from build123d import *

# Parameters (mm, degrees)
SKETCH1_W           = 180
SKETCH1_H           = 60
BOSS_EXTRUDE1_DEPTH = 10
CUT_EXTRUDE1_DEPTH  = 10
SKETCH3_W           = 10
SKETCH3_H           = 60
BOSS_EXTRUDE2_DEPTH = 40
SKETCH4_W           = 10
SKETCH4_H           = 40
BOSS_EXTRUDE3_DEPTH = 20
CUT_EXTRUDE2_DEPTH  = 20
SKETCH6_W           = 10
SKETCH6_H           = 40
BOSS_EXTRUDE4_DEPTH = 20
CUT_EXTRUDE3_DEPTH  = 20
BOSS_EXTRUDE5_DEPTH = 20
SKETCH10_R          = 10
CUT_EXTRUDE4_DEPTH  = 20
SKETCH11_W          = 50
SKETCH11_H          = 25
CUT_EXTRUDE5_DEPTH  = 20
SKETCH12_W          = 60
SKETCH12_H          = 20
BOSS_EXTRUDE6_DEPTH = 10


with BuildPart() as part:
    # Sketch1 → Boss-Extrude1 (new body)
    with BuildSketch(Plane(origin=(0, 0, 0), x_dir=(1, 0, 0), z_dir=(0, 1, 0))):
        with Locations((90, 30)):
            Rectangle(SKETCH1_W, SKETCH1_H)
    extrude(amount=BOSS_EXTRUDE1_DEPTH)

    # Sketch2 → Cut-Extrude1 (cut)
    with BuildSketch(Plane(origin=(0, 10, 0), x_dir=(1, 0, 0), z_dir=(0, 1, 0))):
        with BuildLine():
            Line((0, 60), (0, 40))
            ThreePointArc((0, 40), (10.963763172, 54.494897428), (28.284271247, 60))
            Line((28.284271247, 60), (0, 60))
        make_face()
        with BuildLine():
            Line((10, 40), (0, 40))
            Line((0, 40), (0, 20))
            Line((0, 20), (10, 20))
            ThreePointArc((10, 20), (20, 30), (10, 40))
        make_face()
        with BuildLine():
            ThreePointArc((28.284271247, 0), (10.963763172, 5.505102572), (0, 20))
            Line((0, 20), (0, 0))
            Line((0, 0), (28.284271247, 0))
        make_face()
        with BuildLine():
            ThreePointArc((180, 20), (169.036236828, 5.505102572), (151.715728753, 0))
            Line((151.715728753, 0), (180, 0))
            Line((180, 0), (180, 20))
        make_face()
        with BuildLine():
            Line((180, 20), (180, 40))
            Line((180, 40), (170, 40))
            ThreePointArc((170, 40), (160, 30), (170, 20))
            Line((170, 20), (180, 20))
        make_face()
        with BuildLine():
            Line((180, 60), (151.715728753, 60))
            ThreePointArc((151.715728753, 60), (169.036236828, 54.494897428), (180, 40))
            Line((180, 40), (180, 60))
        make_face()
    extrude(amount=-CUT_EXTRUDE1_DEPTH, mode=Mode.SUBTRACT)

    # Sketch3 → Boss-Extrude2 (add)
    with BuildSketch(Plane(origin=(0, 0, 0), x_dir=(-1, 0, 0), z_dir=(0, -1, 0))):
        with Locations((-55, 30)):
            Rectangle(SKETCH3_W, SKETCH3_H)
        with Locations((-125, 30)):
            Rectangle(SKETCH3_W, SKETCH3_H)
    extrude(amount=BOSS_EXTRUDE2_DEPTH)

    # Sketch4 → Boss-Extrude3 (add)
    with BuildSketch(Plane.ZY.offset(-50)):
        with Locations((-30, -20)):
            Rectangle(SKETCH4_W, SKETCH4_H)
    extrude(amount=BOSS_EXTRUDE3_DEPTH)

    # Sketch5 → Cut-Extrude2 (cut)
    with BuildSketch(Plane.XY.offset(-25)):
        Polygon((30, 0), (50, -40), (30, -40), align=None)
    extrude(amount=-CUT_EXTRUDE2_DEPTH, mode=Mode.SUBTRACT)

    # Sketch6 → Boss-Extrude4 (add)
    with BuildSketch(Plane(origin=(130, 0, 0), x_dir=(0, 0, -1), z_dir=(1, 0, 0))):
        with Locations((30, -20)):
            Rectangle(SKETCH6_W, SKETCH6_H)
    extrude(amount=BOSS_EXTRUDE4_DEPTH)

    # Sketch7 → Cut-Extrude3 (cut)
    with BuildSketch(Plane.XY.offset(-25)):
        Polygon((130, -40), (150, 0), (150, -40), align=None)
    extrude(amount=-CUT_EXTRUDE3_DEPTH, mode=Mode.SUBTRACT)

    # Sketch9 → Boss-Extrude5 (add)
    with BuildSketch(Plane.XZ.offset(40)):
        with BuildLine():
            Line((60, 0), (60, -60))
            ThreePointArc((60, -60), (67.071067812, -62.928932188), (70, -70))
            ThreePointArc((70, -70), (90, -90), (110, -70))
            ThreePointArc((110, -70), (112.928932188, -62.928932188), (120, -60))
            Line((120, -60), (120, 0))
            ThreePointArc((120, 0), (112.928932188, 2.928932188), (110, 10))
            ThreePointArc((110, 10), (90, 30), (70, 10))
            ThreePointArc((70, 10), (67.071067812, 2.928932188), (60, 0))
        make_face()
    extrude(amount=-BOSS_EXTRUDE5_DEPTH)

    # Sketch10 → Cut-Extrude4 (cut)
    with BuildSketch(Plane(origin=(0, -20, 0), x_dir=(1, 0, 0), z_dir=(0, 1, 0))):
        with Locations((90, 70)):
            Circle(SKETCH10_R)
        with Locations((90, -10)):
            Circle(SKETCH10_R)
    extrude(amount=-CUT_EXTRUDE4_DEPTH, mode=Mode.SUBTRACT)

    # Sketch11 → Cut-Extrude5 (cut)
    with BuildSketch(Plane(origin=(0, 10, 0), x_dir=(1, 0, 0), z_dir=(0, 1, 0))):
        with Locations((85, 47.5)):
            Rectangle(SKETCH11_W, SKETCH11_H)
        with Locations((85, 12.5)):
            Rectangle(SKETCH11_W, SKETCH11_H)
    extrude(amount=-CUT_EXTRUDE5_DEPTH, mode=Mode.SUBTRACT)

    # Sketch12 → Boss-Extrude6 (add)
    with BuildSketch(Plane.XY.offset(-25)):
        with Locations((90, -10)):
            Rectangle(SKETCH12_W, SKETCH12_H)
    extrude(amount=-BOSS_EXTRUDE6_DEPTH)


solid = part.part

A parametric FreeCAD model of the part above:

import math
import FreeCAD as App
import Part
import Sketcher
from FreeCAD import Vector
Q = App.Units.Quantity

doc = App.newDocument("Part")
body = doc.addObject("PartDesign::Body", "Body")

sketch1 = body.newObject("Sketcher::SketchObject", "Sketch")
sketch1.AttachmentSupport = (doc.getObject("XZ_Plane"), [""])
sketch1.MapMode = "FlatFace"
sketch1.addGeometry([
    Part.LineSegment(Vector(0, -60, 0), Vector(0, 0, 0)),
    Part.LineSegment(Vector(0, 0, 0), Vector(180, 0, 0)),
    Part.LineSegment(Vector(180, 0, 0), Vector(180, -60, 0)),
    Part.LineSegment(Vector(180, -60, 0), Vector(0, -60, 0)),
], False)
sketch1.addConstraint([
    Sketcher.Constraint("Coincident", 0, 2, 1, 1),
    Sketcher.Constraint("Coincident", 1, 2, 2, 1),
    Sketcher.Constraint("Coincident", 2, 2, 3, 1),
    Sketcher.Constraint("Coincident", 3, 2, 0, 1),
    Sketcher.Constraint("Vertical", 0),
    Sketcher.Constraint("Horizontal", 1),
    Sketcher.Constraint("Vertical", 2),
    Sketcher.Constraint("Horizontal", 3),
    Sketcher.Constraint("Coincident", 0, 2, -1, 1),
    Sketcher.Constraint("DistanceX", 1, 1, 1, 2, Q("180 mm")),
    Sketcher.Constraint("DistanceY", 0, 1, 0, 2, Q("60 mm")),
])
pad1 = body.newObject("PartDesign::Pad", "Pad")
pad1.Profile = sketch1
pad1.Length = 10
pad1.Reversed = True

sketch2 = body.newObject("Sketcher::SketchObject", "Sketch001")
sketch2.AttachmentSupport = (doc.getObject("XZ_Plane"), [""])
sketch2.MapMode = "FlatFace"
sketch2.AttachmentOffset = App.Placement(Vector(0, 0, -10), App.Rotation())
sketch2.addGeometry([
    Part.LineSegment(Vector(0, -60, 0), Vector(0, -40, 0)),
    Part.ArcOfCircle(Part.Circle(Vector(28.284271, -30, 0), Vector(0, 0, 1), 30), math.radians(-160.528779), math.radians(-90)),
    Part.LineSegment(Vector(28.284271, -60, 0), Vector(0, -60, 0)),
    Part.LineSegment(Vector(10, -40, 0), Vector(0, -40, 0)),
    Part.LineSegment(Vector(0, -40, 0), Vector(0, -20, 0)),
    Part.LineSegment(Vector(0, -20, 0), Vector(10, -20, 0)),
    Part.ArcOfCircle(Part.Circle(Vector(10, -30, 0), Vector(0, 0, 1), 10), math.radians(-90), math.radians(90)),
    Part.ArcOfCircle(Part.Circle(Vector(28.284271, -30, 0), Vector(0, 0, 1), 30), math.radians(90), math.radians(160.528779)),
    Part.LineSegment(Vector(0, -20, 0), Vector(0, 0, 0)),
    Part.LineSegment(Vector(0, 0, 0), Vector(28.284271, 0, 0)),
    Part.ArcOfCircle(Part.Circle(Vector(151.715729, -30, 0), Vector(0, 0, 1), 30), math.radians(19.471221), math.radians(90)),
    Part.LineSegment(Vector(151.715729, 0, 0), Vector(180, 0, 0)),
    Part.LineSegment(Vector(180, 0, 0), Vector(180, -20, 0)),
    Part.LineSegment(Vector(180, -20, 0), Vector(180, -40, 0)),
    Part.LineSegment(Vector(180, -40, 0), Vector(170, -40, 0)),
    Part.ArcOfCircle(Part.Circle(Vector(170, -30, 0), Vector(0, 0, 1), 10), math.radians(90), math.radians(270)),
    Part.LineSegment(Vector(170, -20, 0), Vector(180, -20, 0)),
    Part.LineSegment(Vector(180, -60, 0), Vector(151.715729, -60, 0)),
    Part.ArcOfCircle(Part.Circle(Vector(151.715729, -30, 0), Vector(0, 0, 1), 30), math.radians(-90), math.radians(-19.471221)),
    Part.LineSegment(Vector(180, -40, 0), Vector(180, -60, 0)),
], False)
sketch2.addConstraint([
    Sketcher.Constraint("Coincident", 0, 2, 1, 1),
    Sketcher.Constraint("Tangent", 1, 2, 2, 1),
    Sketcher.Constraint("Coincident", 2, 2, 0, 1),
    Sketcher.Constraint("Coincident", 3, 2, 4, 1),
    Sketcher.Constraint("Coincident", 4, 2, 5, 1),
    Sketcher.Constraint("Tangent", 5, 2, 6, 2),
    Sketcher.Constraint("Tangent", 6, 1, 3, 1),
    Sketcher.Constraint("Coincident", 7, 2, 8, 1),
    Sketcher.Constraint("Coincident", 8, 2, 9, 1),
    Sketcher.Constraint("Tangent", 9, 2, 7, 1),
    Sketcher.Constraint("Tangent", 10, 2, 11, 1),
    Sketcher.Constraint("Coincident", 11, 2, 12, 1),
    Sketcher.Constraint("Coincident", 12, 2, 10, 1),
    Sketcher.Constraint("Coincident", 13, 2, 14, 1),
    Sketcher.Constraint("Tangent", 14, 2, 15, 2),
    Sketcher.Constraint("Tangent", 15, 1, 16, 1),
    Sketcher.Constraint("Coincident", 16, 2, 13, 1),
    Sketcher.Constraint("Tangent", 17, 2, 18, 1),
    Sketcher.Constraint("Coincident", 18, 2, 19, 1),
    Sketcher.Constraint("Coincident", 19, 2, 17, 1),
    Sketcher.Constraint("Vertical", 0),
    Sketcher.Constraint("Horizontal", 2),
    Sketcher.Constraint("Horizontal", 3),
    Sketcher.Constraint("Vertical", 4),
    Sketcher.Constraint("Horizontal", 5),
    Sketcher.Constraint("Vertical", 8),
    Sketcher.Constraint("Horizontal", 9),
    Sketcher.Constraint("Horizontal", 11),
    Sketcher.Constraint("Vertical", 12),
    Sketcher.Constraint("Vertical", 13),
    Sketcher.Constraint("Horizontal", 14),
    Sketcher.Constraint("Horizontal", 16),
    Sketcher.Constraint("Horizontal", 17),
    Sketcher.Constraint("Vertical", 19),
    Sketcher.Constraint("Coincident", 8, 2, -1, 1),
    Sketcher.Constraint("Coincident", 7, 3, 1, 3),
    Sketcher.Constraint("Coincident", 18, 3, 10, 3),
    Sketcher.Constraint("Coincident", 3, 2, 0, 2),
    Sketcher.Constraint("Coincident", 7, 2, 4, 2),
    Sketcher.Constraint("Coincident", 16, 2, 12, 2),
    Sketcher.Constraint("Coincident", 18, 2, 13, 2),
    Sketcher.Constraint("Equal", 1, 7),
    Sketcher.Constraint("Equal", 7, 10),
    Sketcher.Constraint("Equal", 6, 15),
    Sketcher.Constraint("Equal", 10, 18),
    Sketcher.Constraint("PointOnObject", 10, 2, -1),
    Sketcher.Constraint("Equal", 5, 14),
    Sketcher.Constraint("Equal", 0, 4),
    Sketcher.Constraint("Radius", 1, Q("30 mm")),
    Sketcher.Constraint("DistanceX", 3, 2, 3, 1, Q("10 mm")),
    Sketcher.Constraint("DistanceX", -1, 1, 15, 3, Q("170 mm")),
])
pocket1 = body.newObject("PartDesign::Pocket", "Pocket")
pocket1.Profile = sketch2
pocket1.Length = 10
pocket1.Reversed = True

sketch3 = body.newObject("Sketcher::SketchObject", "Sketch002")
sketch3.AttachmentSupport = (doc.getObject("XZ_Plane"), [""])
sketch3.MapMode = "FlatFace"
sketch3.addGeometry([
    Part.LineSegment(Vector(60, -60, 0), Vector(60, 0, 0)),
    Part.LineSegment(Vector(60, 0, 0), Vector(50, 0, 0)),
    Part.LineSegment(Vector(50, 0, 0), Vector(50, -60, 0)),
    Part.LineSegment(Vector(50, -60, 0), Vector(60, -60, 0)),
    Part.LineSegment(Vector(130, -60, 0), Vector(130, 0, 0)),
    Part.LineSegment(Vector(130, 0, 0), Vector(120, 0, 0)),
    Part.LineSegment(Vector(120, 0, 0), Vector(120, -60, 0)),
    Part.LineSegment(Vector(120, -60, 0), Vector(130, -60, 0)),
], False)
sketch3.addConstraint([
    Sketcher.Constraint("Coincident", 0, 2, 1, 1),
    Sketcher.Constraint("Coincident", 1, 2, 2, 1),
    Sketcher.Constraint("Coincident", 2, 2, 3, 1),
    Sketcher.Constraint("Coincident", 3, 2, 0, 1),
    Sketcher.Constraint("Coincident", 4, 2, 5, 1),
    Sketcher.Constraint("Coincident", 5, 2, 6, 1),
    Sketcher.Constraint("Coincident", 6, 2, 7, 1),
    Sketcher.Constraint("Coincident", 7, 2, 4, 1),
    Sketcher.Constraint("Vertical", 0),
    Sketcher.Constraint("Horizontal", 1),
    Sketcher.Constraint("Vertical", 2),
    Sketcher.Constraint("Horizontal", 3),
    Sketcher.Constraint("Vertical", 4),
    Sketcher.Constraint("Horizontal", 5),
    Sketcher.Constraint("Vertical", 6),
    Sketcher.Constraint("Horizontal", 7),
    Sketcher.Constraint("PointOnObject", 0, 2, -1),
    Sketcher.Constraint("PointOnObject", 4, 2, -1),
    Sketcher.Constraint("Horizontal", 3, 2, 6, 2),
    Sketcher.Constraint("Equal", 3, 5),
    Sketcher.Constraint("DistanceX", 1, 2, 1, 1, Q("10 mm")),
    Sketcher.Constraint("DistanceY", 0, 1, 0, 2, Q("60 mm")),
    Sketcher.Constraint("DistanceX", -1, 1, 0, 2, Q("60 mm")),
    Sketcher.Constraint("DistanceX", -1, 1, 4, 2, Q("130 mm")),
])
pad2 = body.newObject("PartDesign::Pad", "Pad001")
pad2.Profile = sketch3
pad2.Length = 40

sketch4 = body.newObject("Sketcher::SketchObject", "Sketch003")
sketch4.AttachmentSupport = (doc.getObject("YZ_Plane"), [""])
sketch4.MapMode = "FlatFace"
sketch4.AttachmentOffset = App.Placement(Vector(0, 0, 50), App.Rotation())
sketch4.addGeometry([
    Part.LineSegment(Vector(0, -35, 0), Vector(-40, -35, 0)),
    Part.LineSegment(Vector(-40, -35, 0), Vector(-40, -25, 0)),
    Part.LineSegment(Vector(-40, -25, 0), Vector(0, -25, 0)),
    Part.LineSegment(Vector(0, -25, 0), Vector(0, -35, 0)),
], False)
sketch4.addConstraint([
    Sketcher.Constraint("Coincident", 0, 2, 1, 1),
    Sketcher.Constraint("Coincident", 1, 2, 2, 1),
    Sketcher.Constraint("Coincident", 2, 2, 3, 1),
    Sketcher.Constraint("Coincident", 3, 2, 0, 1),
    Sketcher.Constraint("Horizontal", 0),
    Sketcher.Constraint("Vertical", 1),
    Sketcher.Constraint("Horizontal", 2),
    Sketcher.Constraint("Vertical", 3),
    Sketcher.Constraint("PointOnObject", 2, 2, -2),
    Sketcher.Constraint("DistanceX", 0, 2, 0, 1, Q("40 mm")),
    Sketcher.Constraint("DistanceY", 1, 1, 1, 2, Q("10 mm")),
    Sketcher.Constraint("DistanceY", 0, 2, -1, 1, Q("35 mm")),
])
pad3 = body.newObject("PartDesign::Pad", "Pad002")
pad3.Profile = sketch4
pad3.Length = 20
pad3.Reversed = True

sketch5 = body.newObject("Sketcher::SketchObject", "Sketch004")
sketch5.AttachmentSupport = (doc.getObject("XY_Plane"), [""])
sketch5.MapMode = "FlatFace"
sketch5.AttachmentOffset = App.Placement(Vector(0, 0, -25), App.Rotation())
sketch5.addGeometry([
    Part.LineSegment(Vector(50, -40, 0), Vector(30, 0, 0)),
    Part.LineSegment(Vector(30, 0, 0), Vector(30, -40, 0)),
    Part.LineSegment(Vector(30, -40, 0), Vector(50, -40, 0)),
], False)
sketch5.addConstraint([
    Sketcher.Constraint("Coincident", 0, 2, 1, 1),
    Sketcher.Constraint("Coincident", 1, 2, 2, 1),
    Sketcher.Constraint("Coincident", 2, 2, 0, 1),
    Sketcher.Constraint("Vertical", 1),
    Sketcher.Constraint("Horizontal", 2),
    Sketcher.Constraint("PointOnObject", 0, 2, -1),
    Sketcher.Constraint("DistanceX", 2, 1, 2, 2, Q("20 mm")),
    Sketcher.Constraint("DistanceY", 1, 2, 1, 1, Q("40 mm")),
    Sketcher.Constraint("DistanceX", -1, 1, 0, 2, Q("30 mm")),
])
pocket2 = body.newObject("PartDesign::Pocket", "Pocket001")
pocket2.Profile = sketch5
pocket2.Length = 20

sketch6 = body.newObject("Sketcher::SketchObject", "Sketch005")
sketch6.AttachmentSupport = (doc.getObject("YZ_Plane"), [""])
sketch6.MapMode = "FlatFace"
sketch6.AttachmentOffset = App.Placement(Vector(0, 0, 130), App.Rotation())
sketch6.addGeometry([
    Part.LineSegment(Vector(0, -25, 0), Vector(-40, -25, 0)),
    Part.LineSegment(Vector(-40, -25, 0), Vector(-40, -35, 0)),
    Part.LineSegment(Vector(-40, -35, 0), Vector(0, -35, 0)),
    Part.LineSegment(Vector(0, -35, 0), Vector(0, -25, 0)),
], False)
sketch6.addConstraint([
    Sketcher.Constraint("Coincident", 0, 2, 1, 1),
    Sketcher.Constraint("Coincident", 1, 2, 2, 1),
    Sketcher.Constraint("Coincident", 2, 2, 3, 1),
    Sketcher.Constraint("Coincident", 3, 2, 0, 1),
    Sketcher.Constraint("Horizontal", 0),
    Sketcher.Constraint("Vertical", 1),
    Sketcher.Constraint("Horizontal", 2),
    Sketcher.Constraint("Vertical", 3),
    Sketcher.Constraint("PointOnObject", 2, 2, -2),
    Sketcher.Constraint("DistanceX", 0, 2, 0, 1, Q("40 mm")),
    Sketcher.Constraint("DistanceY", 1, 2, 1, 1, Q("10 mm")),
    Sketcher.Constraint("DistanceY", 0, 2, -1, 1, Q("25 mm")),
])
pad4 = body.newObject("PartDesign::Pad", "Pad003")
pad4.Profile = sketch6
pad4.Length = 20

sketch7 = body.newObject("Sketcher::SketchObject", "Sketch006")
sketch7.AttachmentSupport = (doc.getObject("XY_Plane"), [""])
sketch7.MapMode = "FlatFace"
sketch7.AttachmentOffset = App.Placement(Vector(0, 0, -25), App.Rotation())
sketch7.addGeometry([
    Part.LineSegment(Vector(150, 0, 0), Vector(130, -40, 0)),
    Part.LineSegment(Vector(130, -40, 0), Vector(150, -40, 0)),
    Part.LineSegment(Vector(150, -40, 0), Vector(150, 0, 0)),
], False)
sketch7.addConstraint([
    Sketcher.Constraint("Coincident", 0, 2, 1, 1),
    Sketcher.Constraint("Coincident", 1, 2, 2, 1),
    Sketcher.Constraint("Coincident", 2, 2, 0, 1),
    Sketcher.Constraint("Horizontal", 1),
    Sketcher.Constraint("Vertical", 2),
    Sketcher.Constraint("PointOnObject", 2, 2, -1),
    Sketcher.Constraint("DistanceX", 1, 1, 1, 2, Q("20 mm")),
    Sketcher.Constraint("DistanceY", 2, 1, 2, 2, Q("40 mm")),
    Sketcher.Constraint("DistanceX", -1, 1, 0, 2, Q("130 mm")),
])
pocket3 = body.newObject("PartDesign::Pocket", "Pocket002")
pocket3.Profile = sketch7
pocket3.Length = 20

sketch8 = body.newObject("Sketcher::SketchObject", "Sketch007")
sketch8.AttachmentSupport = (doc.getObject("XZ_Plane"), [""])
sketch8.MapMode = "FlatFace"
sketch8.AttachmentOffset = App.Placement(Vector(0, 0, 40), App.Rotation())
sketch8.addGeometry([
    Part.LineSegment(Vector(60, 0, 0), Vector(60, -60, 0)),
    Part.ArcOfCircle(Part.Circle(Vector(60, -70, 0), Vector(0, 0, 1), 10), math.radians(0), math.radians(90)),
    Part.ArcOfCircle(Part.Circle(Vector(90, -70, 0), Vector(0, 0, 1), 20), math.radians(180), math.radians(360)),
    Part.ArcOfCircle(Part.Circle(Vector(120, -70, 0), Vector(0, 0, 1), 10), math.radians(90), math.radians(180)),
    Part.LineSegment(Vector(120, -60, 0), Vector(120, 0, 0)),
    Part.ArcOfCircle(Part.Circle(Vector(120, 10, 0), Vector(0, 0, 1), 10), math.radians(180), math.radians(270)),
    Part.ArcOfCircle(Part.Circle(Vector(90, 10, 0), Vector(0, 0, 1), 20), math.radians(0), math.radians(180)),
    Part.ArcOfCircle(Part.Circle(Vector(60, 10, 0), Vector(0, 0, 1), 10), math.radians(-90), math.radians(0)),
], False)
sketch8.addConstraint([
    Sketcher.Constraint("Coincident", 0, 2, 1, 2),
    Sketcher.Constraint("Tangent", 1, 1, 2, 1),
    Sketcher.Constraint("Tangent", 2, 2, 3, 2),
    Sketcher.Constraint("Coincident", 3, 1, 4, 1),
    Sketcher.Constraint("Coincident", 4, 2, 5, 2),
    Sketcher.Constraint("Tangent", 5, 1, 6, 1),
    Sketcher.Constraint("Tangent", 6, 2, 7, 2),
    Sketcher.Constraint("Coincident", 7, 1, 0, 1),
    Sketcher.Constraint("Vertical", 0),
    Sketcher.Constraint("Vertical", 4),
    Sketcher.Constraint("Equal", 1, 3),
    Sketcher.Constraint("Equal", 3, 5),
    Sketcher.Constraint("Equal", 2, 6),
    Sketcher.Constraint("Equal", 5, 7),
    Sketcher.Constraint("PointOnObject", 4, 2, -1),
    Sketcher.Constraint("PointOnObject", 7, 1, -1),
    Sketcher.Constraint("Horizontal", 1, 3, 2, 3),
    Sketcher.Constraint("Horizontal", 2, 3, 3, 3),
    Sketcher.Constraint("Horizontal", 5, 3, 6, 3),
    Sketcher.Constraint("Vertical", 3, 3, 5, 3),
    Sketcher.Constraint("Vertical", 7, 3, 0, 2),
    Sketcher.Constraint("Vertical", 5, 3, 3, 1),
    Sketcher.Constraint("Radius", 1, Q("10 mm")),
    Sketcher.Constraint("Radius", 2, Q("20 mm")),
    Sketcher.Constraint("DistanceY", 0, 2, 0, 1, Q("60 mm")),
    Sketcher.Constraint("DistanceX", -1, 1, 1, 3, Q("60 mm")),
])
pad5 = body.newObject("PartDesign::Pad", "Pad004")
pad5.Profile = sketch8
pad5.Length = 20
pad5.Reversed = True

sketch9 = body.newObject("Sketcher::SketchObject", "Sketch008")
sketch9.AttachmentSupport = (doc.getObject("XZ_Plane"), [""])
sketch9.MapMode = "FlatFace"
sketch9.AttachmentOffset = App.Placement(Vector(0, 0, 20), App.Rotation())
sketch9.addGeometry([
    Part.Circle(Vector(90, -70, 0), Vector(0, 0, 1), 10),
    Part.Circle(Vector(90, 10, 0), Vector(0, 0, 1), 10),
], False)
sketch9.addConstraint([
    Sketcher.Constraint("Equal", 0, 1),
    Sketcher.Constraint("Vertical", 0, 3, 1, 3),
    Sketcher.Constraint("Diameter", 0, Q("20 mm")),
    Sketcher.Constraint("DistanceX", -1, 1, 0, 3, Q("90 mm")),
    Sketcher.Constraint("DistanceY", 0, 3, -1, 1, Q("70 mm")),
    Sketcher.Constraint("DistanceY", -1, 1, 1, 3, Q("10 mm")),
])
pocket4 = body.newObject("PartDesign::Pocket", "Pocket003")
pocket4.Profile = sketch9
pocket4.Length = 20
pocket4.Reversed = True

sketch10 = body.newObject("Sketcher::SketchObject", "Sketch009")
sketch10.AttachmentSupport = (doc.getObject("XZ_Plane"), [""])
sketch10.MapMode = "FlatFace"
sketch10.AttachmentOffset = App.Placement(Vector(0, 0, -10), App.Rotation())
sketch10.addGeometry([
    Part.LineSegment(Vector(60, -60, 0), Vector(60, -35, 0)),
    Part.LineSegment(Vector(60, -35, 0), Vector(110, -35, 0)),
    Part.LineSegment(Vector(110, -35, 0), Vector(110, -60, 0)),
    Part.LineSegment(Vector(110, -60, 0), Vector(60, -60, 0)),
    Part.LineSegment(Vector(60, -25, 0), Vector(60, 0, 0)),
    Part.LineSegment(Vector(60, 0, 0), Vector(110, 0, 0)),
    Part.LineSegment(Vector(110, 0, 0), Vector(110, -25, 0)),
    Part.LineSegment(Vector(110, -25, 0), Vector(60, -25, 0)),
], False)
sketch10.addConstraint([
    Sketcher.Constraint("Coincident", 0, 2, 1, 1),
    Sketcher.Constraint("Coincident", 1, 2, 2, 1),
    Sketcher.Constraint("Coincident", 2, 2, 3, 1),
    Sketcher.Constraint("Coincident", 3, 2, 0, 1),
    Sketcher.Constraint("Coincident", 4, 2, 5, 1),
    Sketcher.Constraint("Coincident", 5, 2, 6, 1),
    Sketcher.Constraint("Coincident", 6, 2, 7, 1),
    Sketcher.Constraint("Coincident", 7, 2, 4, 1),
    Sketcher.Constraint("Vertical", 0),
    Sketcher.Constraint("Horizontal", 1),
    Sketcher.Constraint("Vertical", 2),
    Sketcher.Constraint("Horizontal", 3),
    Sketcher.Constraint("Vertical", 4),
    Sketcher.Constraint("Horizontal", 5),
    Sketcher.Constraint("Vertical", 6),
    Sketcher.Constraint("Horizontal", 7),
    Sketcher.Constraint("PointOnObject", 4, 2, -1),
    Sketcher.Constraint("Vertical", 3, 2, 4, 2),
    Sketcher.Constraint("Vertical", 2, 2, 5, 2),
    Sketcher.Constraint("Equal", 2, 4),
    Sketcher.Constraint("DistanceX", 1, 1, 1, 2, Q("50 mm")),
    Sketcher.Constraint("DistanceY", 0, 1, 0, 2, Q("25 mm")),
    Sketcher.Constraint("DistanceX", -1, 1, 0, 2, Q("60 mm")),
    Sketcher.Constraint("DistanceY", 0, 2, -1, 1, Q("35 mm")),
])
pocket5 = body.newObject("PartDesign::Pocket", "Pocket004")
pocket5.Profile = sketch10
pocket5.Length = 20
pocket5.Reversed = True

sketch11 = body.newObject("Sketcher::SketchObject", "Sketch010")
sketch11.AttachmentSupport = (doc.getObject("XY_Plane"), [""])
sketch11.MapMode = "FlatFace"
sketch11.AttachmentOffset = App.Placement(Vector(0, 0, -25), App.Rotation())
sketch11.addGeometry([
    Part.LineSegment(Vector(60, 0, 0), Vector(60, -20, 0)),
    Part.LineSegment(Vector(60, -20, 0), Vector(120, -20, 0)),
    Part.LineSegment(Vector(120, -20, 0), Vector(120, 0, 0)),
    Part.LineSegment(Vector(120, 0, 0), Vector(60, 0, 0)),
], False)
sketch11.addConstraint([
    Sketcher.Constraint("Coincident", 0, 2, 1, 1),
    Sketcher.Constraint("Coincident", 1, 2, 2, 1),
    Sketcher.Constraint("Coincident", 2, 2, 3, 1),
    Sketcher.Constraint("Coincident", 3, 2, 0, 1),
    Sketcher.Constraint("Vertical", 0),
    Sketcher.Constraint("Horizontal", 1),
    Sketcher.Constraint("Vertical", 2),
    Sketcher.Constraint("Horizontal", 3),
    Sketcher.Constraint("PointOnObject", 2, 2, -1),
    Sketcher.Constraint("DistanceX", 1, 1, 1, 2, Q("60 mm")),
    Sketcher.Constraint("DistanceY", 0, 2, 0, 1, Q("20 mm")),
    Sketcher.Constraint("DistanceX", -1, 1, 0, 2, Q("60 mm")),
])
pad6 = body.newObject("PartDesign::Pad", "Pad005")
pad6.Profile = sketch11
pad6.Length = 10
pad6.Reversed = True

doc.recompute()
